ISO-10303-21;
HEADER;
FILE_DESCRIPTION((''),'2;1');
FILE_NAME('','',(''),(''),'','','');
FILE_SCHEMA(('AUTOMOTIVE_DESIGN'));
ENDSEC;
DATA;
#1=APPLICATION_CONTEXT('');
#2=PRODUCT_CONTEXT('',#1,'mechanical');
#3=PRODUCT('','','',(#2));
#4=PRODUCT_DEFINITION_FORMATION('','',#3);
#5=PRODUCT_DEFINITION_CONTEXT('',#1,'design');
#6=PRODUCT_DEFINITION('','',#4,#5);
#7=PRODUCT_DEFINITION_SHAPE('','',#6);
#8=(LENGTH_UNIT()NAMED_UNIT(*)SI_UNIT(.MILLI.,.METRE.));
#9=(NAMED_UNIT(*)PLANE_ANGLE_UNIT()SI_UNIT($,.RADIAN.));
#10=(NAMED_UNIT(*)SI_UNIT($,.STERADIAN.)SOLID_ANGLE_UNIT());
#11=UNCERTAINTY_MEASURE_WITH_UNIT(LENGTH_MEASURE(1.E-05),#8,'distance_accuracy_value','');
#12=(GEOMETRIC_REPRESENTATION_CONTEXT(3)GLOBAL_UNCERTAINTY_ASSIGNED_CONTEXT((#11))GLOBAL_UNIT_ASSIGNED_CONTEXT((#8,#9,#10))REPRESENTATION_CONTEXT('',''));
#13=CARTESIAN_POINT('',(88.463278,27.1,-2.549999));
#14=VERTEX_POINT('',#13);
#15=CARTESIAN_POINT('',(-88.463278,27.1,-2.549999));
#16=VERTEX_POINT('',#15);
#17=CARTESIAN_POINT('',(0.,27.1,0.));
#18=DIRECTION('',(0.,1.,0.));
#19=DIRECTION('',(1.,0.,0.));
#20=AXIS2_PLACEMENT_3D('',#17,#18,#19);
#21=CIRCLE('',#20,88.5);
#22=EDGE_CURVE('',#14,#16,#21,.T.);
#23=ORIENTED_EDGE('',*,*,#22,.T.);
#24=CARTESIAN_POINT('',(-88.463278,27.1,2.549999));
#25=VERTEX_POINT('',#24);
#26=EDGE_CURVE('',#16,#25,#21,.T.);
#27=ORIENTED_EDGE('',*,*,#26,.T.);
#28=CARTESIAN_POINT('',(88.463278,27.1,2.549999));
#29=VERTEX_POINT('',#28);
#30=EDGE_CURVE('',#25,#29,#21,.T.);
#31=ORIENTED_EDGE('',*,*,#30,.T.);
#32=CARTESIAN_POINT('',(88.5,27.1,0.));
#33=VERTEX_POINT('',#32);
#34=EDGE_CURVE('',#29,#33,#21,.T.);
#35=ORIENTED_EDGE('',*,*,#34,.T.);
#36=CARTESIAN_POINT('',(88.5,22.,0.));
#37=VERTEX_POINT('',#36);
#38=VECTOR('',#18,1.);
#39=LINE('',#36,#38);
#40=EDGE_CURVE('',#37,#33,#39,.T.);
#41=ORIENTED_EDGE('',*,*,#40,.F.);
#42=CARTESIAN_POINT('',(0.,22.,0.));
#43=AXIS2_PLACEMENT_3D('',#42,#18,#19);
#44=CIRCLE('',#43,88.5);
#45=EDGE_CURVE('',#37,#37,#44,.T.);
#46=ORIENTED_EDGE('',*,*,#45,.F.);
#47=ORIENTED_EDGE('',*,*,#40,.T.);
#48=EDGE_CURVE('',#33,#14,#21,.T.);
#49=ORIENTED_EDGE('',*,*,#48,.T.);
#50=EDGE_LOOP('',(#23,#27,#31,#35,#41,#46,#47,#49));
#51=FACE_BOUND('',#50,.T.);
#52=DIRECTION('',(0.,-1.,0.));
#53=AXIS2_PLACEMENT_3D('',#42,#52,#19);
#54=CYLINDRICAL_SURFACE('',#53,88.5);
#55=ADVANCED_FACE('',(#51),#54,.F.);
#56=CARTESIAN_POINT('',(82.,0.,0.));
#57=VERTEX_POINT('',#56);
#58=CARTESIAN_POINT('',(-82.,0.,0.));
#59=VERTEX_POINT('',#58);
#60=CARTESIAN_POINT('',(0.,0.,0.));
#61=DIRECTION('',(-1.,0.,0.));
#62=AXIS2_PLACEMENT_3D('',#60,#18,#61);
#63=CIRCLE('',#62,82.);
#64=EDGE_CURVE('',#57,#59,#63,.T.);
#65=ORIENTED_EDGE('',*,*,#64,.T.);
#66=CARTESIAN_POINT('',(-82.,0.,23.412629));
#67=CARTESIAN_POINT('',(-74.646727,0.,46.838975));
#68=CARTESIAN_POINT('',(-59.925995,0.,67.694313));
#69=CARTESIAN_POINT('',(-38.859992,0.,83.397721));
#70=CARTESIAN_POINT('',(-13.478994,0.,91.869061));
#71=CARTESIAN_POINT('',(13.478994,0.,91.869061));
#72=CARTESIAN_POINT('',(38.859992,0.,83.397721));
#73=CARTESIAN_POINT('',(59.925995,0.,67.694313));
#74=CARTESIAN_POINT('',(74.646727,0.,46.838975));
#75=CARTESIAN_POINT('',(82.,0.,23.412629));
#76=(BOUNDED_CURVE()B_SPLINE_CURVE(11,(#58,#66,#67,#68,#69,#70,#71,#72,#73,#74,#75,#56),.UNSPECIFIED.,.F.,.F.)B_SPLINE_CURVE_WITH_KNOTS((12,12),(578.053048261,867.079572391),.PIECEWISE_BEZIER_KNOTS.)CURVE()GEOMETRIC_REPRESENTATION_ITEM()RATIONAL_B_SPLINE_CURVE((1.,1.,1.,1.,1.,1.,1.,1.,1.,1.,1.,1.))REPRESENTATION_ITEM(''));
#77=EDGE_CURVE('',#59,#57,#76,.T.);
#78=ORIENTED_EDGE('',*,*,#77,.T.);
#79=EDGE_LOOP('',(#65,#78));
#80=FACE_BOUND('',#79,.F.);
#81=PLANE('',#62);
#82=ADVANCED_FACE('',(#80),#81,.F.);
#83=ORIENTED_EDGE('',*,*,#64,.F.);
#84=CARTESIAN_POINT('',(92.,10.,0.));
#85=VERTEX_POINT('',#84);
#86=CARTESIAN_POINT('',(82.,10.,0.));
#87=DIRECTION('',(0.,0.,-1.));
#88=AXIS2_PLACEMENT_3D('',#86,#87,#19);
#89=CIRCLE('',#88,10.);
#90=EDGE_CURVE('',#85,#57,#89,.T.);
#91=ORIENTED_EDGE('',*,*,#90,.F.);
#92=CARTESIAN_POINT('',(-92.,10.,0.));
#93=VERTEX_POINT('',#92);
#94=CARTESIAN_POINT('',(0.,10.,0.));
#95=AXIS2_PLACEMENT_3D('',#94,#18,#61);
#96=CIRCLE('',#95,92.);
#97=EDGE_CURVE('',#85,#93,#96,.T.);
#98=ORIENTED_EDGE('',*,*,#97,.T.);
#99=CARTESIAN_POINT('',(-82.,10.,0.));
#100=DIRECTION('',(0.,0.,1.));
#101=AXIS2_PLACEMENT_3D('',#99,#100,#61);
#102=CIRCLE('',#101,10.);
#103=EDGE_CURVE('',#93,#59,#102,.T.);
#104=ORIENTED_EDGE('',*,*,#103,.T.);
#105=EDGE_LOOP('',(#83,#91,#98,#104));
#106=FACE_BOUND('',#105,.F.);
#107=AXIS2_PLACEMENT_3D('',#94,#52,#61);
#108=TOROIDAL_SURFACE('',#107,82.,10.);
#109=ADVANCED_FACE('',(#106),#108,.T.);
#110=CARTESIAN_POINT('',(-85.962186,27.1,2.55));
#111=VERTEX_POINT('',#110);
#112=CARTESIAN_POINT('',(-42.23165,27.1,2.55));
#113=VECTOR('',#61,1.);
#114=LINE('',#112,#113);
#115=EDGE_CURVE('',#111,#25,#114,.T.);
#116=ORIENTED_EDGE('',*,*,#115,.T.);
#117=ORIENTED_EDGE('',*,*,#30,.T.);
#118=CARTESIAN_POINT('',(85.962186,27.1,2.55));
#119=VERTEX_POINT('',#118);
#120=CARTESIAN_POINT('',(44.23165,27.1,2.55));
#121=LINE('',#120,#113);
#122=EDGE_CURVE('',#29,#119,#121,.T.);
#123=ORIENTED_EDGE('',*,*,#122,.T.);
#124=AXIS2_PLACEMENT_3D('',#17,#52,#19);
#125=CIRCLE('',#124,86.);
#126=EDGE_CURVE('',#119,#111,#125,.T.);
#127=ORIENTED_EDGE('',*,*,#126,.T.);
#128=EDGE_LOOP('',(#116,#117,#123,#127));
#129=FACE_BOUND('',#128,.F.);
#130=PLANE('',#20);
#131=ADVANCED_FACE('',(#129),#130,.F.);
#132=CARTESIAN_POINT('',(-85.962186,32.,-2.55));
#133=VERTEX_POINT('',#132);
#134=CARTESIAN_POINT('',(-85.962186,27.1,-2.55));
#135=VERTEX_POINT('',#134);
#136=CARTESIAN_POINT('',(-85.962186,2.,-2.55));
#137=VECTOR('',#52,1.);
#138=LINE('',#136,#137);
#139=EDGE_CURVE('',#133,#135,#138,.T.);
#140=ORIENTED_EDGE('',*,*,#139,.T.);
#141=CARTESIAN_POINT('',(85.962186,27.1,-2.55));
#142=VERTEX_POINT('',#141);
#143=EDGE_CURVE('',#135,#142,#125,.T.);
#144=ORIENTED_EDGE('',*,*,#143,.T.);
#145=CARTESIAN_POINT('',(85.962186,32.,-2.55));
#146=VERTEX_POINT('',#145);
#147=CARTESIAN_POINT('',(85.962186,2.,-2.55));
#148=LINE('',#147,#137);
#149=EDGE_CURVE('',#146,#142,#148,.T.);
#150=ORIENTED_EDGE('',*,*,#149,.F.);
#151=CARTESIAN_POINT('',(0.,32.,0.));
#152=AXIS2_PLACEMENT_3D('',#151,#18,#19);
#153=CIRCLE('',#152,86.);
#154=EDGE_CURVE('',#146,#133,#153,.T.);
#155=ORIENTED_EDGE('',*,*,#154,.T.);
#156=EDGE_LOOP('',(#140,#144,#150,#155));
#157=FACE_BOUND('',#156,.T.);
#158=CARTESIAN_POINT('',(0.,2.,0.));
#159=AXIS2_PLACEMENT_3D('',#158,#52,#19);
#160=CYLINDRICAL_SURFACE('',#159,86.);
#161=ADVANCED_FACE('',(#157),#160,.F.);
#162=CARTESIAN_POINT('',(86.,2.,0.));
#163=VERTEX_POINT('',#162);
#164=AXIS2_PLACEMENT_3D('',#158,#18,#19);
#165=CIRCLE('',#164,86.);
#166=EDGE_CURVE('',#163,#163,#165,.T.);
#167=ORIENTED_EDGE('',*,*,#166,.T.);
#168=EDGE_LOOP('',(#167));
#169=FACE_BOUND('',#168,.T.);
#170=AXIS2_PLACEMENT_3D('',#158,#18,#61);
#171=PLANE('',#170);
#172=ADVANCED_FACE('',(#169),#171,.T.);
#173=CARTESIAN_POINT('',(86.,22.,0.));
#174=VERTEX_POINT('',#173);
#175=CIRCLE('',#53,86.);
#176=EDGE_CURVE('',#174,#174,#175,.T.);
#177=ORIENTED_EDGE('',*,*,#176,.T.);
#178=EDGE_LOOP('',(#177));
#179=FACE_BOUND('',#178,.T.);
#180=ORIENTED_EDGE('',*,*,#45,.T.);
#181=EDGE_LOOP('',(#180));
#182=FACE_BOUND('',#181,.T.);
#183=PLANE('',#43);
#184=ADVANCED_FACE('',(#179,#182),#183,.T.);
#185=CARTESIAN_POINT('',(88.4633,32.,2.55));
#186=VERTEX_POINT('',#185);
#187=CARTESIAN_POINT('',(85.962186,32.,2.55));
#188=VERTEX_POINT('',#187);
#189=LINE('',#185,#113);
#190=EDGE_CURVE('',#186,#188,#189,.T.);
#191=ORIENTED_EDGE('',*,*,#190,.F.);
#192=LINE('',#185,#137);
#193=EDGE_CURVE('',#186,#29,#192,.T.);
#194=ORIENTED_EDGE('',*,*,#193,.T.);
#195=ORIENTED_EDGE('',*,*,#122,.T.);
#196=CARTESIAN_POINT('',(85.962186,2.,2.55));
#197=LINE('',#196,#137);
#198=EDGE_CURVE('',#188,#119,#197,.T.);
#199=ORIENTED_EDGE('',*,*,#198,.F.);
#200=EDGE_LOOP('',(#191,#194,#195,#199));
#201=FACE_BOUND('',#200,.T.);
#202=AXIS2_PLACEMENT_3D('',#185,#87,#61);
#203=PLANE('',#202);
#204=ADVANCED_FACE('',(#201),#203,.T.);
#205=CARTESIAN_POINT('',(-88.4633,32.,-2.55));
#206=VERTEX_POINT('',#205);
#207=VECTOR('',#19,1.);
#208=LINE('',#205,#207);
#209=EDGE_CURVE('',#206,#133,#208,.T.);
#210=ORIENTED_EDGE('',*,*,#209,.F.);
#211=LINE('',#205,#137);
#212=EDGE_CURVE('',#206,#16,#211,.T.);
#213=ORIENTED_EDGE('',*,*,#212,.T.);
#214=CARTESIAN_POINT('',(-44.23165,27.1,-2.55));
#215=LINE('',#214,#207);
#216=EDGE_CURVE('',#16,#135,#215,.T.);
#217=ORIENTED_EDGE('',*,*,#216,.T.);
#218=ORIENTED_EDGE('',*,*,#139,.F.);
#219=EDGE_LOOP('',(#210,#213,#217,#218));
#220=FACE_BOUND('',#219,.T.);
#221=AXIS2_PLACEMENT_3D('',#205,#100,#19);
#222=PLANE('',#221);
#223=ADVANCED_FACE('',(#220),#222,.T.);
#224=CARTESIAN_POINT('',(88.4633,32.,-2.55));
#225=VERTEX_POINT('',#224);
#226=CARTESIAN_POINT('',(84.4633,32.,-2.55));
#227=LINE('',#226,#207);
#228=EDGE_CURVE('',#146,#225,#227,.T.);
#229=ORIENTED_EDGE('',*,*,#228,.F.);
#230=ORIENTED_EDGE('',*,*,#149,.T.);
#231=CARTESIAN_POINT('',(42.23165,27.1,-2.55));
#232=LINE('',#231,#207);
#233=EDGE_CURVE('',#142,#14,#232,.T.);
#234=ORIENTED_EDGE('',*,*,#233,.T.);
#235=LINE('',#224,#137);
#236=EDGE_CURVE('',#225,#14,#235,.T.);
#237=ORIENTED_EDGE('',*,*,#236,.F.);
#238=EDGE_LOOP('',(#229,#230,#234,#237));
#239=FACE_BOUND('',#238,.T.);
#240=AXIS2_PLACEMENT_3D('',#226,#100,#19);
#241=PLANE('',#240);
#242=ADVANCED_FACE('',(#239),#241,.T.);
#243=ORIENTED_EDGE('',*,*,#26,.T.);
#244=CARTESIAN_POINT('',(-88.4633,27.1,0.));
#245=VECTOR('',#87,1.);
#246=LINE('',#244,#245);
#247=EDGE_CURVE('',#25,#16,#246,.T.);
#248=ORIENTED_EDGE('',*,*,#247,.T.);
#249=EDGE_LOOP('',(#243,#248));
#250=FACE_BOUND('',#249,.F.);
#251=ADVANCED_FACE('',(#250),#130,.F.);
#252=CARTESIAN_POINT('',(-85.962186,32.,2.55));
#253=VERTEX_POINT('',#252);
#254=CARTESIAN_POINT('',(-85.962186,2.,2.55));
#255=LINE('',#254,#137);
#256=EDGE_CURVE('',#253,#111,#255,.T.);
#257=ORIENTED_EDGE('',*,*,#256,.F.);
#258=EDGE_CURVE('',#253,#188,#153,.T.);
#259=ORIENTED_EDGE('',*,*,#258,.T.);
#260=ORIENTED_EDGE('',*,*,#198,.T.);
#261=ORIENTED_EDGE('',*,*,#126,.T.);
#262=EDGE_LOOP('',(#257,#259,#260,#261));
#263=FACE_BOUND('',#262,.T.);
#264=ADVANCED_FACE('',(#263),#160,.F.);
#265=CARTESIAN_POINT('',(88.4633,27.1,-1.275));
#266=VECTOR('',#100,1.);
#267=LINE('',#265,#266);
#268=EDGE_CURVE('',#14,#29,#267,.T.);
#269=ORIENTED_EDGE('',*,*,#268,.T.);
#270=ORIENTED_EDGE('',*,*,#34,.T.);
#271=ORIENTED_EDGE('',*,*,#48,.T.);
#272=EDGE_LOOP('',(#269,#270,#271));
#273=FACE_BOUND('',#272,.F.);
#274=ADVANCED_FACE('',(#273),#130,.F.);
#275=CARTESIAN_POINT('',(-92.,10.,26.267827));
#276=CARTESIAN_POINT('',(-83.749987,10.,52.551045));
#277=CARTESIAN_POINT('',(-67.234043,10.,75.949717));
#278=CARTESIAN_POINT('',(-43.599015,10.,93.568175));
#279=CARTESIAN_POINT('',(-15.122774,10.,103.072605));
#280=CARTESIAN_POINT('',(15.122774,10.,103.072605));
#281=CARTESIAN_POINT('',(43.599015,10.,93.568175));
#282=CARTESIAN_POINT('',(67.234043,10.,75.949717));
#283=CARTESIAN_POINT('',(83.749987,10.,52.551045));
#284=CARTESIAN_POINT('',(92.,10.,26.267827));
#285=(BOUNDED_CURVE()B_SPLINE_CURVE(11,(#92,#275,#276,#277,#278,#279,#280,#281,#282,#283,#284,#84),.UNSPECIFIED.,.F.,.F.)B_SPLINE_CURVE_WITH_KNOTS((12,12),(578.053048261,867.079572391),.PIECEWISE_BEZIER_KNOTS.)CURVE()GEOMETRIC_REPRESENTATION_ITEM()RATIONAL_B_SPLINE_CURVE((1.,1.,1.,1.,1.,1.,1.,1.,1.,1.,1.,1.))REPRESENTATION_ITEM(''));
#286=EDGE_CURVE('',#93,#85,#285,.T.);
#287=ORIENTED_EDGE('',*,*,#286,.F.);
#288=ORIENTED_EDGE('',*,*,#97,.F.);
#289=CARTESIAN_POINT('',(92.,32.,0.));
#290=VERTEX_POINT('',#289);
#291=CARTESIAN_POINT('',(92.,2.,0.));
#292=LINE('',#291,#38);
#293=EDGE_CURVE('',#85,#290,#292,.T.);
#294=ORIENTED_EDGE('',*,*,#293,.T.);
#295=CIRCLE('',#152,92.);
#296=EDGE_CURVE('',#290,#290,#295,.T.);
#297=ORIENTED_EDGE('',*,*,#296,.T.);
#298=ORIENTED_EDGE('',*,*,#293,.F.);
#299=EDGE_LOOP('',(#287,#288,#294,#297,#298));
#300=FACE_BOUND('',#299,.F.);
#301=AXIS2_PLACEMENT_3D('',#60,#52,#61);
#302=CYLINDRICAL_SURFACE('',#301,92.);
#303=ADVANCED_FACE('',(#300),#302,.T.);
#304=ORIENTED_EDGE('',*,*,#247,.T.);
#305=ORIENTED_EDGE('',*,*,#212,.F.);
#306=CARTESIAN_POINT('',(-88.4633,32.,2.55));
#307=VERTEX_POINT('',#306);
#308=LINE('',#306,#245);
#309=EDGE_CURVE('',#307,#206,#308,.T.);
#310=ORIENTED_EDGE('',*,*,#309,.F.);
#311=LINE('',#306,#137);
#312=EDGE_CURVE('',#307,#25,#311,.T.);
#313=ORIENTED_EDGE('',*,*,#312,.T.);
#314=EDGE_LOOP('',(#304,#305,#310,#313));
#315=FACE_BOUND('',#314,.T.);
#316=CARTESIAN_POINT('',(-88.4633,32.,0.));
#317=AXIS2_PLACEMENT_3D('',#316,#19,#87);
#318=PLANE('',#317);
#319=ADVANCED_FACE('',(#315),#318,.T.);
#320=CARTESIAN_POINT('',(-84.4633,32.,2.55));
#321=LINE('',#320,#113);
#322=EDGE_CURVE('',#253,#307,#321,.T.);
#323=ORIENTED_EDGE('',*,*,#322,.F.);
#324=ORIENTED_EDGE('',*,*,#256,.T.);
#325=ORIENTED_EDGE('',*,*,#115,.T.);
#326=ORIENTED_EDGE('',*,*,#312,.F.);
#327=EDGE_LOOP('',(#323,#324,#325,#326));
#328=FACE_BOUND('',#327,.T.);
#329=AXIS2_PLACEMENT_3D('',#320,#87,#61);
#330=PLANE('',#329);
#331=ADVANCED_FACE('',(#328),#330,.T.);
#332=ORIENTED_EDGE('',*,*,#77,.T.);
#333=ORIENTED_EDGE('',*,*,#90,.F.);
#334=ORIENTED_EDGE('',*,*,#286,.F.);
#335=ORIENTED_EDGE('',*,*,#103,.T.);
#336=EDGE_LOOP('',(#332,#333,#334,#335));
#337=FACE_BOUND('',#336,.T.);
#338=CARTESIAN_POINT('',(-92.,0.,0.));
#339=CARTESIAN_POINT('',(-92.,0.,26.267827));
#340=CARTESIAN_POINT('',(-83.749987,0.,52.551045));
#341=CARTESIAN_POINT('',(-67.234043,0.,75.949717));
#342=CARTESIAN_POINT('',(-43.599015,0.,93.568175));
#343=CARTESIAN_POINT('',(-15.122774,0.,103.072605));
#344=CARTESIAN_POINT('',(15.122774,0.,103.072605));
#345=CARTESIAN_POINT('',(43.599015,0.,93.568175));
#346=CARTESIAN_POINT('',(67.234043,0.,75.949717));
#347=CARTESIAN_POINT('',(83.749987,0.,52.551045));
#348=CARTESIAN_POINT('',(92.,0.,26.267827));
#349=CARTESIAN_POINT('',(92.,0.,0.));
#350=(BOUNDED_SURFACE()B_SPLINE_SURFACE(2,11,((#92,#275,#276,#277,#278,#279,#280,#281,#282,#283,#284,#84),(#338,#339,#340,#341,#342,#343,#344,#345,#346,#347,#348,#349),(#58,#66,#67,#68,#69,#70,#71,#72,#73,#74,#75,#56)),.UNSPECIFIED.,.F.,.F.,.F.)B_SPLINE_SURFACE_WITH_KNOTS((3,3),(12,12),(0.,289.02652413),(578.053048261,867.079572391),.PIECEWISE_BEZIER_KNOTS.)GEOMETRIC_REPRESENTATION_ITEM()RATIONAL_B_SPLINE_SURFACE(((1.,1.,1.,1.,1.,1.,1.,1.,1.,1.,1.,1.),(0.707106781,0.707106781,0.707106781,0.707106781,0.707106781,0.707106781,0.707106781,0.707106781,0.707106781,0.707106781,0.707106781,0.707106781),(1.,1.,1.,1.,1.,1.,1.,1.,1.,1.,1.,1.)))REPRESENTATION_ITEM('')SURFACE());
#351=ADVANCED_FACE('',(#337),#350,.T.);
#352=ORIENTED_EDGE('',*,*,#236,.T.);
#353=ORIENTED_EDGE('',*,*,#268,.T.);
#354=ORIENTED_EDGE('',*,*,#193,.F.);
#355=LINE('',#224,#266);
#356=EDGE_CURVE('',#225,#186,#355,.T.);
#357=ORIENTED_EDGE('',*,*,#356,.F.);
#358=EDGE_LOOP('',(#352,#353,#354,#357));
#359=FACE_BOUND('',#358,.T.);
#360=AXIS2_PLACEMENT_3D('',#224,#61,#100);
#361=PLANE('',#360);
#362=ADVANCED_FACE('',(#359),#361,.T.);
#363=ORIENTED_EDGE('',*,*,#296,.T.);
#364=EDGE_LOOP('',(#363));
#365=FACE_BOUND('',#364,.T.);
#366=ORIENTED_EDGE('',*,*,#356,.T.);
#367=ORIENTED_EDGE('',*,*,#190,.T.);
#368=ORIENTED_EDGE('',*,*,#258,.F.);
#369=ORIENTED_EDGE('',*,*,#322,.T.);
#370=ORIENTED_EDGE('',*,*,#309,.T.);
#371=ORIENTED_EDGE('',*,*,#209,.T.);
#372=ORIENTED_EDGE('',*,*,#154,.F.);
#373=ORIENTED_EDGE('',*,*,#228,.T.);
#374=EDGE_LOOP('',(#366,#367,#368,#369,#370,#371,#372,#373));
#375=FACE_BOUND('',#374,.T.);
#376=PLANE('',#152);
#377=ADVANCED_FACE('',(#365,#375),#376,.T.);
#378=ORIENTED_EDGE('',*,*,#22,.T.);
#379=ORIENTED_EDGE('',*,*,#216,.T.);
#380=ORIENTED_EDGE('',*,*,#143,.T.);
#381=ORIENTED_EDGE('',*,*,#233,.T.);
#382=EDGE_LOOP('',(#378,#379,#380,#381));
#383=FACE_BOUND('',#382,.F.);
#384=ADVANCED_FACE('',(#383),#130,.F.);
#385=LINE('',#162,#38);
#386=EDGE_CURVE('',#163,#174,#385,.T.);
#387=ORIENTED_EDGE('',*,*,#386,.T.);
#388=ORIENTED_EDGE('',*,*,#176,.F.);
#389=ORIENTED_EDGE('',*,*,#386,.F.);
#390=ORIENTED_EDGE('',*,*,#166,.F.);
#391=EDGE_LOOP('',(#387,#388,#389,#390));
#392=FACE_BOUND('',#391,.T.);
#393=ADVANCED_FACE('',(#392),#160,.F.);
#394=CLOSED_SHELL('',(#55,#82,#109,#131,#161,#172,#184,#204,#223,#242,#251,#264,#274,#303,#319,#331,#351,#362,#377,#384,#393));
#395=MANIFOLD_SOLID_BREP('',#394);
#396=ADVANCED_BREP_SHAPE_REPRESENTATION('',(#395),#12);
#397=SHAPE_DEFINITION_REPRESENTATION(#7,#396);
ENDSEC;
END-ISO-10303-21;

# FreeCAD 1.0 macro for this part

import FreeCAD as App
import Part
import Sketcher

V = App.Vector


def edges_at(feature, points):
    """Names of the edges that pass closest to the given points."""
    edges = feature.Shape.Edges
    near = lambda p: min(range(len(edges)), key=lambda i: edges[i].distToShape(Part.Vertex(*p))[0])
    return sorted({f"Edge{near(p) + 1}" for p in points})

doc = App.newDocument("Part")
body = doc.addObject("PartDesign::Body", "Body")

# Sketch on XZ plane
sketch1 = body.newObject("Sketcher::SketchObject", "Sketch")
sketch1.AttachmentSupport = (doc.getObject("XZ_Plane"), [""])
sketch1.MapMode = "FlatFace"
sketch1.addGeometry(Part.Circle(V(0, 0, 0), V(0, 0, 1), 92), False)
sketch1.addConstraint(Sketcher.Constraint("Coincident", 0, 3, -1, 1))
sketch1.addConstraint(Sketcher.Constraint("Diameter", 0, 184.0))
pad1 = body.newObject("PartDesign::Pad", "Pad")
pad1.Profile = sketch1
pad1.Length = 2
pad1.Reversed = True

# Sketch on XZ plane
sketch2 = body.newObject("Sketcher::SketchObject", "Sketch001")
sketch2.AttachmentSupport = (doc.getObject("XZ_Plane"), [""])
sketch2.MapMode = "FlatFace"
sketch2.AttachmentOffset = App.Placement(V(0, 0, -2), App.Rotation())
sketch2.addGeometry(Part.Circle(V(0, 0, 0), V(0, 0, 1), 92), False)
sketch2.addGeometry(Part.Circle(V(0, 0, 0), V(0, 0, 1), 86), False)
sketch2.addConstraint(Sketcher.Constraint("Coincident", 0, 3, -1, 1))
sketch2.addConstraint(Sketcher.Constraint("Coincident", 1, 3, -1, 1))
sketch2.addConstraint(Sketcher.Constraint("Diameter", 0, 184.0))
sketch2.addConstraint(Sketcher.Constraint("Diameter", 1, 172.0))
pad2 = body.newObject("PartDesign::Pad", "Pad001")
pad2.Profile = sketch2
pad2.Length = 30
pad2.Reversed = True

# Sketch on XZ plane
sketch3 = body.newObject("Sketcher::SketchObject", "Sketch002")
sketch3.AttachmentSupport = (doc.getObject("XZ_Plane"), [""])
sketch3.MapMode = "FlatFace"
sketch3.AttachmentOffset = App.Placement(V(0, 0, -22), App.Rotation())
sketch3.addGeometry(Part.Circle(V(0, 0, 0), V(0, 0, 1), 88), False)
sketch3.addConstraint(Sketcher.Constraint("Coincident", 0, 3, -1, 1))
sketch3.addConstraint(Sketcher.Constraint("Diameter", 0, 177.0))
pocket1 = body.newObject("PartDesign::Pocket", "Pocket")
pocket1.Profile = sketch3
pocket1.Length = 5.1

# Sketch on XZ plane
sketch4 = body.newObject("Sketcher::SketchObject", "Sketch003")
sketch4.AttachmentSupport = (doc.getObject("XZ_Plane"), [""])
sketch4.MapMode = "FlatFace"
sketch4.AttachmentOffset = App.Placement(V(0, 0, -32), App.Rotation())
sketch4.addGeometry(Part.LineSegment(V(88.5, -2.5, 0), V(84.5, -2.5, 0)), False)
sketch4.addGeometry(Part.LineSegment(V(84.5, -2.5, 0), V(84.5, 2.5, 0)), False)
sketch4.addGeometry(Part.LineSegment(V(84.5, 2.5, 0), V(88.5, 2.5, 0)), False)
sketch4.addGeometry(Part.LineSegment(V(88.5, 2.5, 0), V(88.5, -2.5, 0)), False)
sketch4.addGeometry(Part.LineSegment(V(-84.5, -2.5, 0), V(-88.5, -2.5, 0)), False)
sketch4.addGeometry(Part.LineSegment(V(-88.5, -2.5, 0), V(-88.5, 2.5, 0)), False)
sketch4.addGeometry(Part.LineSegment(V(-88.5, 2.5, 0), V(-84.5, 2.5, 0)), False)
sketch4.addGeometry(Part.LineSegment(V(-84.5, 2.5, 0), V(-84.5, -2.5, 0)), False)
sketch4.addConstraint(Sketcher.Constraint("Coincident", 0, 2, 1, 1))
sketch4.addConstraint(Sketcher.Constraint("Coincident", 1, 2, 2, 1))
sketch4.addConstraint(Sketcher.Constraint("Coincident", 2, 2, 3, 1))
sketch4.addConstraint(Sketcher.Constraint("Coincident", 3, 2, 0, 1))
sketch4.addConstraint(Sketcher.Constraint("Coincident", 4, 2, 5, 1))
sketch4.addConstraint(Sketcher.Constraint("Coincident", 5, 2, 6, 1))
sketch4.addConstraint(Sketcher.Constraint("Coincident", 6, 2, 7, 1))
sketch4.addConstraint(Sketcher.Constraint("Coincident", 7, 2, 4, 1))
sketch4.addConstraint(Sketcher.Constraint("Horizontal", 0))
sketch4.addConstraint(Sketcher.Constraint("Vertical", 1))
sketch4.addConstraint(Sketcher.Constraint("Horizontal", 2))
sketch4.addConstraint(Sketcher.Constraint("Vertical", 3))
sketch4.addConstraint(Sketcher.Constraint("Horizontal", 4))
sketch4.addConstraint(Sketcher.Constraint("Vertical", 5))
sketch4.addConstraint(Sketcher.Constraint("Horizontal", 6))
sketch4.addConstraint(Sketcher.Constraint("Vertical", 7))
sketch4.addConstraint(Sketcher.Constraint("Symmetric", 2, 2, 4, 2, -1, 1))
sketch4.addConstraint(Sketcher.Constraint("Symmetric", 0, 2, 6, 2, -1, 1))
sketch4.addConstraint(Sketcher.Constraint("Horizontal", 3, 2, 4, 2))
sketch4.addConstraint(Sketcher.Constraint("DistanceX", 0, 2, 0, 1, 4.0))
sketch4.addConstraint(Sketcher.Constraint("DistanceY", 1, 1, 1, 2, 5.1))
sketch4.addConstraint(Sketcher.Constraint("DistanceX", -1, 1, 0, 2, 84.4633))
pocket2 = body.newObject("PartDesign::Pocket", "Pocket001")
pocket2.Profile = sketch4
pocket2.Length = 5.1
pocket2.Reversed = True
doc.recompute()

fillet = body.newObject("PartDesign::Fillet", "Fillet")
fillet.Base = (pocket2, edges_at(pocket2, [(92, 0, 0)]))
fillet.Radius = 10

doc.recompute()
